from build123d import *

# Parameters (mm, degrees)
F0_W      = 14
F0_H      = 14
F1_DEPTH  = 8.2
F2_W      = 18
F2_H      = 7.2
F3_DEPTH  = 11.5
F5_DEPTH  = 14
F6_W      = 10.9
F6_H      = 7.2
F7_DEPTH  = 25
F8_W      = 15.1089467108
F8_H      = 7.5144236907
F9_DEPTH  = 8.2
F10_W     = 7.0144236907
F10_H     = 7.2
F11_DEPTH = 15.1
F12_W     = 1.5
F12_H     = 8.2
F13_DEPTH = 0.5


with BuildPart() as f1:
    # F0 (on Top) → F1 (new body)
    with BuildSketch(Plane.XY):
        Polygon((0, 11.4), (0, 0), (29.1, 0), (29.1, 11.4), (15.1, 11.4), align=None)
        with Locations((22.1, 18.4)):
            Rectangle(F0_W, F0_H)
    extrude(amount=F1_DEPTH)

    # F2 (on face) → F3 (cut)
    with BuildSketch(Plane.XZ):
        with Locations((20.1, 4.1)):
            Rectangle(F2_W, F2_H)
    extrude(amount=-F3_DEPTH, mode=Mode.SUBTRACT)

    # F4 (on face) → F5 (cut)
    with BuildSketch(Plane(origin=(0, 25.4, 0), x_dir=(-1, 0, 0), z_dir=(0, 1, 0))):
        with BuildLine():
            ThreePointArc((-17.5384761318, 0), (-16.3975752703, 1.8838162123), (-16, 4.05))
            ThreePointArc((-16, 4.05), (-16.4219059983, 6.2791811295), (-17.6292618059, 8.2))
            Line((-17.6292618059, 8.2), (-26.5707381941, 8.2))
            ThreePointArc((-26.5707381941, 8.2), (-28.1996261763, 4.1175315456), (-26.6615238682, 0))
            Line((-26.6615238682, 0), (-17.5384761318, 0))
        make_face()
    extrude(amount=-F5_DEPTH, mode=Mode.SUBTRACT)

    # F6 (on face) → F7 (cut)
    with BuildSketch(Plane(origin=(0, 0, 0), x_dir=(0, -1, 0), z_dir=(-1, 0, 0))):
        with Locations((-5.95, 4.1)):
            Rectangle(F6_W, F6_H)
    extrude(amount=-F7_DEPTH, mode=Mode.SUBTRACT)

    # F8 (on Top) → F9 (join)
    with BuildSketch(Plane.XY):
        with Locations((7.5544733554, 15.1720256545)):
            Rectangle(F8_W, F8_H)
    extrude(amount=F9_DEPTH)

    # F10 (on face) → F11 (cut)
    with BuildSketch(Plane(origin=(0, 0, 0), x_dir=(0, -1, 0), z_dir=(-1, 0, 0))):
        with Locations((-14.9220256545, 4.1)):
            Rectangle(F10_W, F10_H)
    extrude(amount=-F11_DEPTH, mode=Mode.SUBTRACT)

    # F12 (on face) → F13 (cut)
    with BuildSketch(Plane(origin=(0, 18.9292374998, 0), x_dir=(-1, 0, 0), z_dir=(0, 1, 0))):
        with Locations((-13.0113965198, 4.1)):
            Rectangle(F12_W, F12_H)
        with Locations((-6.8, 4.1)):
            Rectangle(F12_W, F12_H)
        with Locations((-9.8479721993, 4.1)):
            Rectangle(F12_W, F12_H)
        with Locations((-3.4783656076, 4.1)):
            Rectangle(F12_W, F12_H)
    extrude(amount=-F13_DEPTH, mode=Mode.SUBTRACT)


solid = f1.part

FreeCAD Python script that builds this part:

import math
import FreeCAD as App
import Part
import Sketcher


def add_polygon(sketch, points):
    """Adds a closed chain of lines whose ends are joined by coincident constraints."""
    first, n = sketch.GeometryCount, len(points)
    for a, b in zip(points, points[1:] + points[:1]):
        sketch.addGeometry(Part.LineSegment(App.Vector(*a, 0), App.Vector(*b, 0)), False)
    for i in range(n):
        sketch.addConstraint(Sketcher.Constraint("Coincident", first + i, 2, first + (i + 1) % n, 1))

doc = App.newDocument("Part")
body = doc.addObject("PartDesign::Body", "Body")

# Sketch on XY plane
sketch1 = body.newObject("Sketcher::SketchObject", "Sketch")
sketch1.AttachmentSupport = (doc.getObject("XY_Plane"), [""])
sketch1.MapMode = "FlatFace"
add_polygon(sketch1, [(0, 11.4), (0, 0), (29.1, 0), (29.1, 25.4), (15.1, 25.4), (15.1, 11.4)])  # lines 0-5
sketch1.addConstraint([
    Sketcher.Constraint("Vertical", 0),
    Sketcher.Constraint("Horizontal", 1),
    Sketcher.Constraint("Vertical", 2),
    Sketcher.Constraint("Horizontal", 3),
    Sketcher.Constraint("Vertical", 4),
    Sketcher.Constraint("Horizontal", 5),
    Sketcher.Constraint("Coincident", 0, 2, -1, 1),
    Sketcher.Constraint("Equal", 3, 4),
    Sketcher.Constraint("DistanceX", 3, 2, 3, 1, 14.0),
    Sketcher.Constraint("DistanceX", 1, 1, 1, 2, 29.1),
    Sketcher.Constraint("DistanceY", 0, 2, 0, 1, 11.4),
])
pad1 = body.newObject("PartDesign::Pad", "Pad")
pad1.Profile = sketch1
pad1.Length = 8.2

# Sketch on XZ plane
sketch2 = body.newObject("Sketcher::SketchObject", "Sketch001")
sketch2.AttachmentSupport = (doc.getObject("XZ_Plane"), [""])
sketch2.MapMode = "FlatFace"
add_polygon(sketch2, [(11.1, 7.7), (11.1, 0.5), (29.1, 0.5), (29.1, 7.7)])  # lines 0-3
sketch2.addConstraint([
    Sketcher.Constraint("Vertical", 0),
    Sketcher.Constraint("Horizontal", 1),
    Sketcher.Constraint("Vertical", 2),
    Sketcher.Constraint("Horizontal", 3),
    Sketcher.Constraint("DistanceX", 1, 1, 1, 2, 18.0),
    Sketcher.Constraint("DistanceY", 0, 2, 0, 1, 7.2),
    Sketcher.Constraint("DistanceX", -1, 1, 0, 2, 11.1),
    Sketcher.Constraint("DistanceY", -1, 1, 0, 2, 0.5),
])
pocket1 = body.newObject("PartDesign::Pocket", "Pocket")
pocket1.Profile = sketch2
pocket1.Length = 11.5

# Sketch on XZ plane
sketch3 = body.newObject("Sketcher::SketchObject", "Sketch002")
sketch3.AttachmentSupport = (doc.getObject("XZ_Plane"), [""])
sketch3.MapMode = "FlatFace"
sketch3.AttachmentOffset = App.Placement(App.Vector(0, 0, -25.4), App.Rotation())
sketch3.addGeometry([
    Part.ArcOfCircle(Part.Circle(App.Vector(22.1, 4.05, 0), App.Vector(0, 0, 1), 6.1), math.radians(180), math.radians(221.600629)),  # 0
    Part.ArcOfCircle(Part.Circle(App.Vector(22.1, 4.05, 0), App.Vector(0, 0, 1), 6.1), math.radians(137.130731), math.radians(180)),  # 1
    Part.LineSegment(App.Vector(17.629262, 8.2, 0), App.Vector(26.570738, 8.2, 0)),  # 2
    Part.ArcOfCircle(Part.Circle(App.Vector(22.1, 4.05, 0), App.Vector(0, 0, 1), 6.1), math.radians(-41.600629), math.radians(42.869269)),  # 3
    Part.LineSegment(App.Vector(26.661524, 0, 0), App.Vector(17.538476, 0, 0)),  # 4
], False)
sketch3.addConstraint([
    Sketcher.Constraint("Tangent", 0, 1, 1, 2),
    Sketcher.Constraint("Coincident", 1, 1, 2, 1),
    Sketcher.Constraint("Coincident", 2, 2, 3, 2),
    Sketcher.Constraint("Coincident", 3, 1, 4, 1),
    Sketcher.Constraint("Coincident", 4, 2, 0, 2),
    Sketcher.Constraint("Horizontal", 2),
    Sketcher.Constraint("Horizontal", 4),
    Sketcher.Constraint("Coincident", 3, 3, 0, 3),
    Sketcher.Constraint("Equal", 0, 1),
    Sketcher.Constraint("Equal", 1, 3),
    Sketcher.Constraint("PointOnObject", 3, 1, -1),
    Sketcher.Constraint("Horizontal", 3, 3, 0, 1),
    Sketcher.Constraint("Radius", 0, 6.1),
    Sketcher.Constraint("DistanceX", -1, 1, 0, 1, 16.0),
    Sketcher.Constraint("DistanceY", -1, 1, 1, 1, 8.2),
    Sketcher.Constraint("DistanceY", -1, 1, 0, 3, 4.05),
])
pocket2 = body.newObject("PartDesign::Pocket", "Pocket001")
pocket2.Profile = sketch3
pocket2.Length = 14
pocket2.Reversed = True

# Sketch on YZ plane
sketch4 = body.newObject("Sketcher::SketchObject", "Sketch003")
sketch4.AttachmentSupport = (doc.getObject("YZ_Plane"), [""])
sketch4.MapMode = "FlatFace"
add_polygon(sketch4, [(11.4, 7.7), (11.4, 0.5), (0.5, 0.5), (0.5, 7.7)])  # lines 0-3
sketch4.addConstraint([
    Sketcher.Constraint("Vertical", 0),
    Sketcher.Constraint("Horizontal", 1),
    Sketcher.Constraint("Vertical", 2),
    Sketcher.Constraint("Horizontal", 3),
    Sketcher.Constraint("DistanceX", 1, 2, 1, 1, 10.9),
    Sketcher.Constraint("DistanceY", 0, 2, 0, 1, 7.2),
    Sketcher.Constraint("DistanceX", -1, 1, 0, 2, 11.4),
    Sketcher.Constraint("DistanceY", -1, 1, 0, 2, 0.5),
])
pocket3 = body.newObject("PartDesign::Pocket", "Pocket002")
pocket3.Profile = sketch4
pocket3.Length = 25
pocket3.Reversed = True

# Sketch on XY plane
sketch5 = body.newObject("Sketcher::SketchObject", "Sketch004")
sketch5.AttachmentSupport = (doc.getObject("XY_Plane"), [""])
sketch5.MapMode = "FlatFace"
add_polygon(sketch5, [(0, 18.929237), (0, 11.414814), (15.108947, 11.414814), (15.108947, 18.929237)])  # lines 0-3
sketch5.addConstraint([
    Sketcher.Constraint("Vertical", 0),
    Sketcher.Constraint("Horizontal", 1),
    Sketcher.Constraint("Vertical", 2),
    Sketcher.Constraint("Horizontal", 3),
    Sketcher.Constraint("PointOnObject", 0, 2, -2),
    Sketcher.Constraint("DistanceX", 1, 1, 1, 2, 15.108947),
    Sketcher.Constraint("DistanceY", 0, 2, 0, 1, 7.514424),
    Sketcher.Constraint("DistanceY", -1, 1, 0, 2, 11.414814),
])
pad2 = body.newObject("PartDesign::Pad", "Pad001")
pad2.Profile = sketch5
pad2.Length = 8.2

# Sketch on YZ plane
sketch6 = body.newObject("Sketcher::SketchObject", "Sketch005")
sketch6.AttachmentSupport = (doc.getObject("YZ_Plane"), [""])
sketch6.MapMode = "FlatFace"
add_polygon(sketch6, [(18.429237, 7.7), (18.429237, 0.5), (11.414814, 0.5), (11.414814, 7.7)])  # lines 0-3
sketch6.addConstraint([
    Sketcher.Constraint("Vertical", 0),
    Sketcher.Constraint("Horizontal", 1),
    Sketcher.Constraint("Vertical", 2),
    Sketcher.Constraint("Horizontal", 3),
    Sketcher.Constraint("DistanceY", 0, 2, 0, 1, 7.2),
    Sketcher.Constraint("DistanceY", -1, 1, 0, 2, 0.5),
    Sketcher.Constraint("DistanceX", 1, 2, 1, 1, 7.014424),
    Sketcher.Constraint("DistanceX", -1, 1, 0, 2, 18.429237),
])
pocket4 = body.newObject("PartDesign::Pocket", "Pocket003")
pocket4.Profile = sketch6
pocket4.Length = 15.1
pocket4.Reversed = True

# Sketch on XZ plane
sketch7 = body.newObject("Sketcher::SketchObject", "Sketch006")
sketch7.AttachmentSupport = (doc.getObject("XZ_Plane"), [""])
sketch7.MapMode = "FlatFace"
sketch7.AttachmentOffset = App.Placement(App.Vector(0, 0, -18.929237), App.Rotation())
add_polygon(sketch7, [(13.761397, 8.2), (13.761397, 0), (12.261397, 0), (12.261397, 8.2)])  # lines 0-3
add_polygon(sketch7, [(7.55, 8.2), (7.55, 0), (6.05, 0), (6.05, 8.2)])  # lines 4-7
add_polygon(sketch7, [(10.597972, 8.2), (10.597972, 0), (9.097972, 0), (9.097972, 8.2)])  # lines 8-11
add_polygon(sketch7, [(4.228366, 8.2), (4.228366, 0), (2.728366, 0), (2.728366, 8.2)])  # lines 12-15
sketch7.addConstraint([
    Sketcher.Constraint("Vertical", 0),
    Sketcher.Constraint("Horizontal", 1),
    Sketcher.Constraint("Vertical", 2),
    Sketcher.Constraint("Horizontal", 3),
    Sketcher.Constraint("Vertical", 4),
    Sketcher.Constraint("Horizontal", 5),
    Sketcher.Constraint("Vertical", 6),
    Sketcher.Constraint("Horizontal", 7),
    Sketcher.Constraint("Vertical", 8),
    Sketcher.Constraint("Horizontal", 9),
    Sketcher.Constraint("Vertical", 10),
    Sketcher.Constraint("Horizontal", 11),
    Sketcher.Constraint("Vertical", 12),
    Sketcher.Constraint("Horizontal", 13),
    Sketcher.Constraint("Vertical", 14),
    Sketcher.Constraint("Horizontal", 15),
    Sketcher.Constraint("PointOnObject", 0, 2, -1),
    Sketcher.Constraint("PointOnObject", 4, 2, -1),
    Sketcher.Constraint("PointOnObject", 8, 2, -1),
    Sketcher.Constraint("PointOnObject", 12, 2, -1),
    Sketcher.Constraint("Horizontal", 3, 2, 6, 2),
    Sketcher.Constraint("Horizontal", 7, 2, 10, 2),
    Sketcher.Constraint("Horizontal", 11, 2, 14, 2),
    Sketcher.Constraint("Equal", 3, 5),
    Sketcher.Constraint("Equal", 7, 9),
    Sketcher.Constraint("Equal", 11, 13),
    Sketcher.Constraint("DistanceX", 1, 2, 1, 1, 1.5),
    Sketcher.Constraint("DistanceY", 0, 2, 0, 1, 8.2),
    Sketcher.Constraint("DistanceX", -1, 1, 4, 2, 7.55),
    Sketcher.Constraint("DistanceX", 12, 2, 1, 2, 8.033031),
    Sketcher.Constraint("DistanceX", -1, 1, 0, 2, 13.761397),
    Sketcher.Constraint("DistanceX", -1, 1, 8, 2, 10.597972),
])
pocket5 = body.newObject("PartDesign::Pocket", "Pocket004")
pocket5.Profile = sketch7
pocket5.Length = 0.5
pocket5.Reversed = True

doc.recompute()
